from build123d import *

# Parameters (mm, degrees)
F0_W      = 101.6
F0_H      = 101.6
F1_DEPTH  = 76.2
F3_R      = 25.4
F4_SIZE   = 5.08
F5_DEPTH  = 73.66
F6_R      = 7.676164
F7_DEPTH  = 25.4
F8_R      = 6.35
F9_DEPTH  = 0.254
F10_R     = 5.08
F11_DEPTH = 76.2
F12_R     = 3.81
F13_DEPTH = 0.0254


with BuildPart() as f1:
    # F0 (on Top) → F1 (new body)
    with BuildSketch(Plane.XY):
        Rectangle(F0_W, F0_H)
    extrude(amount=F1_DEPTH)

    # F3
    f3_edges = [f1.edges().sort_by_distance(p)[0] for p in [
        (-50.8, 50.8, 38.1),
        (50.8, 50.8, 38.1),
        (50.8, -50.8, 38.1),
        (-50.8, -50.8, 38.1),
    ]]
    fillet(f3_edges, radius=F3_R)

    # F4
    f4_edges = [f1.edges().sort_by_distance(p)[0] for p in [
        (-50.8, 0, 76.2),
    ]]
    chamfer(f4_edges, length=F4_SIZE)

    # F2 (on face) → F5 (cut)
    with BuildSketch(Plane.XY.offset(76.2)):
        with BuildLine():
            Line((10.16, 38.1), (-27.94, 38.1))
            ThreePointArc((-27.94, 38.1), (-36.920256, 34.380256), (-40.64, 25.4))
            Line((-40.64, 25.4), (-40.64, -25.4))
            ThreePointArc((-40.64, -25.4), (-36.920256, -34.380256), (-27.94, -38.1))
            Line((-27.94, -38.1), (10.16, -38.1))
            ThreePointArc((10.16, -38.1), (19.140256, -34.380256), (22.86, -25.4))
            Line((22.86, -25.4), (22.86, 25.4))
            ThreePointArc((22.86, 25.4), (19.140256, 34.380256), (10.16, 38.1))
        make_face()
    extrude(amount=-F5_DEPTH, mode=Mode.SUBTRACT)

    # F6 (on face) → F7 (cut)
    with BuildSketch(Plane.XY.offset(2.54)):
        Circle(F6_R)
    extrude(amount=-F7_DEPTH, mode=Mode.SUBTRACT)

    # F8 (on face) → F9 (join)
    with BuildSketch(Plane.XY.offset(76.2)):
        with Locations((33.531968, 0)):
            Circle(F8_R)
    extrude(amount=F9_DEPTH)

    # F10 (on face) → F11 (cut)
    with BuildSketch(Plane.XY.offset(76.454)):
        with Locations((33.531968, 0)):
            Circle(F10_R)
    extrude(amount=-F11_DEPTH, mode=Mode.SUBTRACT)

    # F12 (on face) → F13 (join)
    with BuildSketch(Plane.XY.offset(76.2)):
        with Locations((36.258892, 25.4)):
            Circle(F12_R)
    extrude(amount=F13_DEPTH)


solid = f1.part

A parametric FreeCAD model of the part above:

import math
import FreeCAD as App
import Part
import Sketcher

V = App.Vector
Q = App.Units.Quantity


def edges_at(feature, points):
    """Names of the edges that pass closest to the given points."""
    edges = feature.Shape.Edges
    near = lambda p: min(range(len(edges)), key=lambda i: edges[i].distToShape(Part.Vertex(*p))[0])
    return sorted({f"Edge{near(p) + 1}" for p in points})

doc = App.newDocument("Part")
params = doc.addObject("Spreadsheet::Sheet", "Params")
for row, (alias, value) in enumerate([
    ("sketch1_width", "4 in"),
    ("pad1_length", "3 in"),
    ("fillet_radius", "1 in"),
    ("chamfer_size", "0.2 in"),
    ("sketch2_radius", "0.5 in"),
    ("sketch2_height", "2 in"),
    ("sketch2_width", "1.5 in"),
    ("pocket1_length", "2.9 in"),
    ("pocket2_length", "1 in"),
    ("sketch4_diameter", "0.5 in"),
    ("pad2_length", "0.01 in"),
    ("sketch5_diameter", "0.4 in"),
    ("pocket3_length", "3 in"),
    ("sketch6_diameter", "0.3 in"),
    ("pad3_length", "0.001 in"),
], start=1):
    params.set(f"A{row}", alias)
    params.set(f"B{row}", "=" + value)
    params.setAlias(f"B{row}", alias)

body = doc.addObject("PartDesign::Body", "Body")

# Sketch on XY plane
sketch1 = doc.addObject("Sketcher::SketchObject", "Sketch")
body.addObject(sketch1)
sketch1.AttachmentSupport = (doc.XY_Plane, [""])
sketch1.MapMode = "FlatFace"
sketch1.addGeometry(Part.LineSegment(V(-51, 51, 0), V(-51, -51, 0)), False)
sketch1.addGeometry(Part.LineSegment(V(-51, -51, 0), V(51, -51, 0)), False)
sketch1.addGeometry(Part.LineSegment(V(51, -51, 0), V(51, 51, 0)), False)
sketch1.addGeometry(Part.LineSegment(V(51, 51, 0), V(-51, 51, 0)), False)
sketch1.addConstraint(Sketcher.Constraint("Coincident", 0, 2, 1, 1))
sketch1.addConstraint(Sketcher.Constraint("Coincident", 1, 2, 2, 1))
sketch1.addConstraint(Sketcher.Constraint("Coincident", 2, 2, 3, 1))
sketch1.addConstraint(Sketcher.Constraint("Coincident", 3, 2, 0, 1))
sketch1.addConstraint(Sketcher.Constraint("Vertical", 0))
sketch1.addConstraint(Sketcher.Constraint("Horizontal", 1))
sketch1.addConstraint(Sketcher.Constraint("Vertical", 2))
sketch1.addConstraint(Sketcher.Constraint("Horizontal", 3))
sketch1.addConstraint(Sketcher.Constraint("Symmetric", 0, 2, 2, 2, -1, 1))
sketch1.addConstraint(Sketcher.Constraint("Equal", 3, 0))
sketch1.addConstraint(Sketcher.Constraint("DistanceX", 1, 1, 1, 2, Q("4 in")))
sketch1.setExpression("Constraints[10]", "Params.sketch1_width")
pad1 = doc.addObject("PartDesign::Pad", "Pad")
body.addObject(pad1)
pad1.Profile = sketch1
pad1.setExpression("Length", "Params.pad1_length")
doc.recompute()

fillet = doc.addObject("PartDesign::Fillet", "Fillet")
body.addObject(fillet)
fillet.Base = (pad1, edges_at(pad1, [
    (-50.8, 50.8, 38.1),
    (50.8, 50.8, 38.1),
    (50.8, -50.8, 38.1),
    (-50.8, -50.8, 38.1),
]))
fillet.setExpression("Radius", "Params.fillet_radius")
doc.recompute()

chamfer = doc.addObject("PartDesign::Chamfer", "Chamfer")
body.addObject(chamfer)
chamfer.Base = (fillet, edges_at(fillet, [(-50.8, 0, 76.2)]))
chamfer.setExpression("Size", "Params.chamfer_size")

# Sketch on XY plane
sketch2 = doc.addObject("Sketcher::SketchObject", "Sketch001")
body.addObject(sketch2)
sketch2.AttachmentSupport = (doc.XY_Plane, [""])
sketch2.MapMode = "FlatFace"
sketch2.AttachmentOffset = App.Placement(V(0, 0, 3 * 25.4), App.Rotation())
sketch2.addGeometry(Part.LineSegment(V(10, 38, 0), V(-28, 38, 0)), False)
sketch2.addGeometry(Part.ArcOfCircle(Part.Circle(V(-28, 25, 0), V(0, 0, 1), 13), math.radians(90), math.radians(180)), False)
sketch2.addGeometry(Part.LineSegment(V(-41, 25, 0), V(-41, -25, 0)), False)
sketch2.addGeometry(Part.ArcOfCircle(Part.Circle(V(-28, -25, 0), V(0, 0, 1), 13), math.radians(-180), math.radians(-90)), False)
sketch2.addGeometry(Part.LineSegment(V(-28, -38, 0), V(10, -38, 0)), False)
sketch2.addGeometry(Part.ArcOfCircle(Part.Circle(V(10, -25, 0), V(0, 0, 1), 13), math.radians(-90), math.radians(0)), False)
sketch2.addGeometry(Part.LineSegment(V(23, -25, 0), V(23, 25, 0)), False)
sketch2.addGeometry(Part.ArcOfCircle(Part.Circle(V(10, 25, 0), V(0, 0, 1), 13), math.radians(0), math.radians(90)), False)
sketch2.addConstraint(Sketcher.Constraint("Tangent", 0, 2, 1, 1))
sketch2.addConstraint(Sketcher.Constraint("Tangent", 1, 2, 2, 1))
sketch2.addConstraint(Sketcher.Constraint("Tangent", 2, 2, 3, 1))
sketch2.addConstraint(Sketcher.Constraint("Tangent", 3, 2, 4, 1))
sketch2.addConstraint(Sketcher.Constraint("Tangent", 4, 2, 5, 1))
sketch2.addConstraint(Sketcher.Constraint("Tangent", 5, 2, 6, 1))
sketch2.addConstraint(Sketcher.Constraint("Tangent", 6, 2, 7, 1))
sketch2.addConstraint(Sketcher.Constraint("Tangent", 7, 2, 0, 1))
sketch2.addConstraint(Sketcher.Constraint("Horizontal", 0))
sketch2.addConstraint(Sketcher.Constraint("Vertical", 2))
sketch2.addConstraint(Sketcher.Constraint("Horizontal", 4))
sketch2.addConstraint(Sketcher.Constraint("Vertical", 6))
sketch2.addConstraint(Sketcher.Constraint("Equal", 1, 3))
sketch2.addConstraint(Sketcher.Constraint("Equal", 3, 5))
sketch2.addConstraint(Sketcher.Constraint("Equal", 5, 7))
sketch2.addConstraint(Sketcher.Constraint("Radius", 1, Q("0.5 in")))
sketch2.addConstraint(Sketcher.Constraint("DistanceY", 2, 2, 2, 1, Q("2 in")))
sketch2.addConstraint(Sketcher.Constraint("DistanceX", 0, 2, 0, 1, Q("1.5 in")))
sketch2.addConstraint(Sketcher.Constraint("DistanceY", -1, 1, 1, 3, Q("1 in")))
sketch2.addConstraint(Sketcher.Constraint("DistanceX", 1, 3, -1, 1, Q("1.1 in")))
sketch2.setExpression("Constraints[15]", "Params.sketch2_radius")
sketch2.setExpression("Constraints[16]", "Params.sketch2_height")
sketch2.setExpression("Constraints[17]", "Params.sketch2_width")
pocket1 = doc.addObject("PartDesign::Pocket", "Pocket")
body.addObject(pocket1)
pocket1.Profile = sketch2
pocket1.setExpression("Length", "Params.pocket1_length")

# Sketch on XY plane
sketch3 = doc.addObject("Sketcher::SketchObject", "Sketch002")
body.addObject(sketch3)
sketch3.AttachmentSupport = (doc.XY_Plane, [""])
sketch3.MapMode = "FlatFace"
sketch3.AttachmentOffset = App.Placement(V(0, 0, 0.1 * 25.4), App.Rotation())
sketch3.addGeometry(Part.Circle(V(0, 0, 0), V(0, 0, 1), 8), False)
sketch3.addConstraint(Sketcher.Constraint("Coincident", 0, 3, -1, 1))
sketch3.addConstraint(Sketcher.Constraint("Diameter", 0, Q("15.352328 mm")))
pocket2 = doc.addObject("PartDesign::Pocket", "Pocket001")
body.addObject(pocket2)
pocket2.Profile = sketch3
pocket2.setExpression("Length", "Params.pocket2_length")

# Sketch on XY plane
sketch4 = doc.addObject("Sketcher::SketchObject", "Sketch003")
body.addObject(sketch4)
sketch4.AttachmentSupport = (doc.XY_Plane, [""])
sketch4.MapMode = "FlatFace"
sketch4.AttachmentOffset = App.Placement(V(0, 0, 3 * 25.4), App.Rotation())
sketch4.addGeometry(Part.Circle(V(34, 0, 0), V(0, 0, 1), 6), False)
sketch4.addConstraint(Sketcher.Constraint("PointOnObject", 0, 3, -1))
sketch4.addConstraint(Sketcher.Constraint("Diameter", 0, Q("0.5 in")))
sketch4.addConstraint(Sketcher.Constraint("DistanceX", -1, 1, 0, 3, Q("33.531968 mm")))
sketch4.setExpression("Constraints[1]", "Params.sketch4_diameter")
pad2 = doc.addObject("PartDesign::Pad", "Pad001")
body.addObject(pad2)
pad2.Profile = sketch4
pad2.setExpression("Length", "Params.pad2_length")

# Sketch on XY plane
sketch5 = doc.addObject("Sketcher::SketchObject", "Sketch004")
body.addObject(sketch5)
sketch5.AttachmentSupport = (doc.XY_Plane, [""])
sketch5.MapMode = "FlatFace"
sketch5.AttachmentOffset = App.Placement(V(0, 0, 3.01 * 25.4), App.Rotation())
sketch5.addGeometry(Part.Circle(V(34, 0, 0), V(0, 0, 1), 5), False)
sketch5.addConstraint(Sketcher.Constraint("PointOnObject", 0, 3, -1))
sketch5.addConstraint(Sketcher.Constraint("Diameter", 0, Q("0.4 in")))
sketch5.addConstraint(Sketcher.Constraint("DistanceX", -1, 1, 0, 3, Q("33.531968 mm")))
sketch5.setExpression("Constraints[1]", "Params.sketch5_diameter")
pocket3 = doc.addObject("PartDesign::Pocket", "Pocket002")
body.addObject(pocket3)
pocket3.Profile = sketch5
pocket3.setExpression("Length", "Params.pocket3_length")

# Sketch on XY plane
sketch6 = doc.addObject("Sketcher::SketchObject", "Sketch005")
body.addObject(sketch6)
sketch6.AttachmentSupport = (doc.XY_Plane, [""])
sketch6.MapMode = "FlatFace"
sketch6.AttachmentOffset = App.Placement(V(0, 0, 3 * 25.4), App.Rotation())
sketch6.addGeometry(Part.Circle(V(36.3, 25.4, 0), V(0, 0, 1), 3.8), False)
sketch6.addConstraint(Sketcher.Constraint("Diameter", 0, Q("0.3 in")))
sketch6.addConstraint(Sketcher.Constraint("DistanceY", -1, 1, 0, 3, Q("1 in")))
sketch6.addConstraint(Sketcher.Constraint("DistanceX", -1, 1, 0, 3, Q("36.258892 mm")))
sketch6.setExpression("Constraints[0]", "Params.sketch6_diameter")
pad3 = doc.addObject("PartDesign::Pad", "Pad002")
body.addObject(pad3)
pad3.Profile = sketch6
pad3.setExpression("Length", "Params.pad3_length")

doc.recompute()
